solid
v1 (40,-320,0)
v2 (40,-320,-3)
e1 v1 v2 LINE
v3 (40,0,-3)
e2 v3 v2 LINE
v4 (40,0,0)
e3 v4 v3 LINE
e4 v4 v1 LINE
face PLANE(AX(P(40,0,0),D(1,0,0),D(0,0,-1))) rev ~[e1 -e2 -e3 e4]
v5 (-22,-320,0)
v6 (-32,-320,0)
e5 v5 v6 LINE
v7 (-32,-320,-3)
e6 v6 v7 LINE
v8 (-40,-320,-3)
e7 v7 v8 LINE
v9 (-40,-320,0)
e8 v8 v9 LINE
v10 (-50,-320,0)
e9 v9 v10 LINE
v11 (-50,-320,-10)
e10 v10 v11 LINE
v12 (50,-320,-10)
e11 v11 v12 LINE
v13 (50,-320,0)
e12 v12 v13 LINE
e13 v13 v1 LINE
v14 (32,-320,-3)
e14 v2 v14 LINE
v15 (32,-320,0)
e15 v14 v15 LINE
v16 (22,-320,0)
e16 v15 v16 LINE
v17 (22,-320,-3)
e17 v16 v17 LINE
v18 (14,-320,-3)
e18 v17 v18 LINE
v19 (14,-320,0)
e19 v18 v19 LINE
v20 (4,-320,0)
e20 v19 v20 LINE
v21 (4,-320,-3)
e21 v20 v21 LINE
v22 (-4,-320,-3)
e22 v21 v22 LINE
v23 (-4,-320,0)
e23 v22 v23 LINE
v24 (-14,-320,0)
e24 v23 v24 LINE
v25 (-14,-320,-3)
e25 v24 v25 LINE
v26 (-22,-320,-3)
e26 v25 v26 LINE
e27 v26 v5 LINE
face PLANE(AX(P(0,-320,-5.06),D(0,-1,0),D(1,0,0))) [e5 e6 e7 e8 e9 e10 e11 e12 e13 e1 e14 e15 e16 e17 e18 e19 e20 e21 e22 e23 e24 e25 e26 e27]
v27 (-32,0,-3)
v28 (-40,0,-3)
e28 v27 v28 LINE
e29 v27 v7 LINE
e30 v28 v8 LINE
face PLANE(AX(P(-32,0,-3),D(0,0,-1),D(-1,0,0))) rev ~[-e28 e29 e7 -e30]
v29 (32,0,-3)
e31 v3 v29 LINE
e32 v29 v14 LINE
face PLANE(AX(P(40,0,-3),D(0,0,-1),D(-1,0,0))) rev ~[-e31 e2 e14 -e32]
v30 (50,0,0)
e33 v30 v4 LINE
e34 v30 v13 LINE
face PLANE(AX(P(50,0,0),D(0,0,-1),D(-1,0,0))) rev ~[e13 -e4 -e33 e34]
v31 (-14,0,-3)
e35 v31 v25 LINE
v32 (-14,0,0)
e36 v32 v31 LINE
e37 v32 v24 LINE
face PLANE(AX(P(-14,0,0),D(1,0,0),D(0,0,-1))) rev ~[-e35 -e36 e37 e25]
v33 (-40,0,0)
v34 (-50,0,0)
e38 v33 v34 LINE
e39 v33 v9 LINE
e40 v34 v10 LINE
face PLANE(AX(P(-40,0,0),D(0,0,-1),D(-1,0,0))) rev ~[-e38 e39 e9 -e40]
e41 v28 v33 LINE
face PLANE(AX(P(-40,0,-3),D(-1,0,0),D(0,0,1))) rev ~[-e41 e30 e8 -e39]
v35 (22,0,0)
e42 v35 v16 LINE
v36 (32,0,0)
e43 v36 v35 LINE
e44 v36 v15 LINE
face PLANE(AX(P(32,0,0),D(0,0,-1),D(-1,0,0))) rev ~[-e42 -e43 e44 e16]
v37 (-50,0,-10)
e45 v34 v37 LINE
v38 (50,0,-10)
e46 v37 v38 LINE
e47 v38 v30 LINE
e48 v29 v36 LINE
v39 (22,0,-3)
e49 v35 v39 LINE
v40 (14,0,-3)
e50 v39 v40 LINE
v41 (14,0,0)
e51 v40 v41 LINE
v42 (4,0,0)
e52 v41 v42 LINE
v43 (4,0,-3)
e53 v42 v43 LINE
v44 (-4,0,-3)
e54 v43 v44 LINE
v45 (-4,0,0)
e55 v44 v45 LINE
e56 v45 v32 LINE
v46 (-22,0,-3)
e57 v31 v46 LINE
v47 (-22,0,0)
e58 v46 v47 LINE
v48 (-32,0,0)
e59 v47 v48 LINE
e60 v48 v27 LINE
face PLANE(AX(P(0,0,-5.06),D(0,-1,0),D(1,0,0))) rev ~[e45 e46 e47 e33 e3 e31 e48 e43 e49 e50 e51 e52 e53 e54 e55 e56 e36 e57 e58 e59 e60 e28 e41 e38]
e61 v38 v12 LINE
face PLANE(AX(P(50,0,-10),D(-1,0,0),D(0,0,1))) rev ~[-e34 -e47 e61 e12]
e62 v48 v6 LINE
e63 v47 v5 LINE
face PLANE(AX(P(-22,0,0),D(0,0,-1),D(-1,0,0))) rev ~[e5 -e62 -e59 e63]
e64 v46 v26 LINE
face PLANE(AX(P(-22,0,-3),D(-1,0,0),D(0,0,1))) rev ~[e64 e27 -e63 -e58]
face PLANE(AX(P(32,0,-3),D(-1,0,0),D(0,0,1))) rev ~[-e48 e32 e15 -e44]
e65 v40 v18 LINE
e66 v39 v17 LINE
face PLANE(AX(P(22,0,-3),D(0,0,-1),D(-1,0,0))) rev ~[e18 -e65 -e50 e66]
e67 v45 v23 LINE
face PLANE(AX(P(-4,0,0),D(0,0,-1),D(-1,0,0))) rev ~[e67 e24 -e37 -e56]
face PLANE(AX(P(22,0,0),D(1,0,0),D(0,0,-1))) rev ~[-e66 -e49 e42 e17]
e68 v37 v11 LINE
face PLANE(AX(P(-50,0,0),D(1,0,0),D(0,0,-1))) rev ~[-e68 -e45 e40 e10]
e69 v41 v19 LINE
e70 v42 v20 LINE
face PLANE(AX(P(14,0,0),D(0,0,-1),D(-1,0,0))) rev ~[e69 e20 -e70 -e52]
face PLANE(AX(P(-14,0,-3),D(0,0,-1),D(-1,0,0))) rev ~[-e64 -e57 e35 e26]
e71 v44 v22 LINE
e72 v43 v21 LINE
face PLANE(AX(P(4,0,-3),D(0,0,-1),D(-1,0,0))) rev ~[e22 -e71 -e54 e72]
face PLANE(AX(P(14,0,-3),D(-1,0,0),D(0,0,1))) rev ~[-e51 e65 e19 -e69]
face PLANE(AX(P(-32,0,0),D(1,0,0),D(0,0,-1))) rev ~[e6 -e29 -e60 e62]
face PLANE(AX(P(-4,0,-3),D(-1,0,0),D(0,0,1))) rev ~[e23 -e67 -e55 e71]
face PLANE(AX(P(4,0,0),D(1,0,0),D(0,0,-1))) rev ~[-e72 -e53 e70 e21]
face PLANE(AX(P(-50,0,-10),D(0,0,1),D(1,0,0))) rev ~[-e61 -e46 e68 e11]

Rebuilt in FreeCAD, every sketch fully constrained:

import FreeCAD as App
import Part
import Sketcher

V = App.Vector
Q = App.Units.Quantity


def add_polygon(sketch, points):
    """Adds a closed chain of lines whose ends are joined by coincident constraints."""
    first, n = sketch.GeometryCount, len(points)
    for a, b in zip(points, points[1:] + points[:1]):
        sketch.addGeometry(Part.LineSegment(App.Vector(*a, 0), App.Vector(*b, 0)), False)
    for i in range(n):
        sketch.addConstraint(Sketcher.Constraint("Coincident", first + i, 2, first + (i + 1) % n, 1))

doc = App.newDocument("Part")
body = doc.addObject("PartDesign::Body", "Body")

# Sketch on XZ plane
sketch1 = doc.addObject("Sketcher::SketchObject", "Sketch")
body.addObject(sketch1)
sketch1.AttachmentSupport = (doc.XZ_Plane, [""])
sketch1.MapMode = "FlatFace"
add_polygon(sketch1, [(-40, 0), (-50, 0), (-50, -10), (50, -10), (50, 0), (40, 0), (40, -3), (32, -3), (32, 0), (22, 0), (22, -3), (14, -3), (14, 0), (4, 0), (4, -3), (-4, -3), (-4, 0), (-14, 0), (-14, -3), (-22, -3), (-22, 0), (-32, 0), (-32, -3), (-40, -3)])  # lines 0-23
sketch1.addConstraint([
    Sketcher.Constraint("Horizontal", 0),
    Sketcher.Constraint("Vertical", 1),
    Sketcher.Constraint("Horizontal", 2),
    Sketcher.Constraint("Vertical", 3),
    Sketcher.Constraint("Horizontal", 4),
    Sketcher.Constraint("Vertical", 5),
    Sketcher.Constraint("Horizontal", 6),
    Sketcher.Constraint("Vertical", 7),
    Sketcher.Constraint("Horizontal", 8),
    Sketcher.Constraint("Vertical", 9),
    Sketcher.Constraint("Horizontal", 10),
    Sketcher.Constraint("Vertical", 11),
    Sketcher.Constraint("Horizontal", 12),
    Sketcher.Constraint("Vertical", 13),
    Sketcher.Constraint("Horizontal", 14),
    Sketcher.Constraint("Vertical", 15),
    Sketcher.Constraint("Horizontal", 16),
    Sketcher.Constraint("Vertical", 17),
    Sketcher.Constraint("Horizontal", 18),
    Sketcher.Constraint("Vertical", 19),
    Sketcher.Constraint("Horizontal", 20),
    Sketcher.Constraint("Vertical", 21),
    Sketcher.Constraint("Horizontal", 22),
    Sketcher.Constraint("Vertical", 23),
    Sketcher.Constraint("Symmetric", 0, 2, 3, 2, -1, 1),
    Sketcher.Constraint("Symmetric", 12, 2, 15, 2, -1, 1),
    Sketcher.Constraint("Symmetric", 8, 2, 19, 2, -1, 1),
    Sketcher.Constraint("Symmetric", 11, 2, 16, 2, -2),
    Sketcher.Constraint("Symmetric", 7, 2, 20, 2, -2),
    Sketcher.Constraint("Symmetric", 5, 2, 22, 2, -2),
    Sketcher.Constraint("PointOnObject", 0, 2, -1),
    Sketcher.Constraint("Horizontal", 6, 2, 9, 2),
    Sketcher.Constraint("Horizontal", 10, 2, 13, 2),
    Sketcher.Constraint("Horizontal", 14, 2, 17, 2),
    Sketcher.Constraint("Equal", 4, 8),
    Sketcher.Constraint("Equal", 6, 10),
    Sketcher.Constraint("Equal", 8, 12),
    Sketcher.Constraint("Equal", 10, 14),
    Sketcher.Constraint("Equal", 20, 1),
    Sketcher.Constraint("DistanceX", 0, 2, 0, 1, Q("10 mm")),
    Sketcher.Constraint("DistanceX", 2, 1, 2, 2, Q("100 mm")),
    Sketcher.Constraint("DistanceY", 5, 2, 5, 1, Q("3 mm")),
])
pad1 = doc.addObject("PartDesign::Pad", "Pad")
body.addObject(pad1)
pad1.Profile = sketch1
pad1.Length = 320

doc.recompute()
